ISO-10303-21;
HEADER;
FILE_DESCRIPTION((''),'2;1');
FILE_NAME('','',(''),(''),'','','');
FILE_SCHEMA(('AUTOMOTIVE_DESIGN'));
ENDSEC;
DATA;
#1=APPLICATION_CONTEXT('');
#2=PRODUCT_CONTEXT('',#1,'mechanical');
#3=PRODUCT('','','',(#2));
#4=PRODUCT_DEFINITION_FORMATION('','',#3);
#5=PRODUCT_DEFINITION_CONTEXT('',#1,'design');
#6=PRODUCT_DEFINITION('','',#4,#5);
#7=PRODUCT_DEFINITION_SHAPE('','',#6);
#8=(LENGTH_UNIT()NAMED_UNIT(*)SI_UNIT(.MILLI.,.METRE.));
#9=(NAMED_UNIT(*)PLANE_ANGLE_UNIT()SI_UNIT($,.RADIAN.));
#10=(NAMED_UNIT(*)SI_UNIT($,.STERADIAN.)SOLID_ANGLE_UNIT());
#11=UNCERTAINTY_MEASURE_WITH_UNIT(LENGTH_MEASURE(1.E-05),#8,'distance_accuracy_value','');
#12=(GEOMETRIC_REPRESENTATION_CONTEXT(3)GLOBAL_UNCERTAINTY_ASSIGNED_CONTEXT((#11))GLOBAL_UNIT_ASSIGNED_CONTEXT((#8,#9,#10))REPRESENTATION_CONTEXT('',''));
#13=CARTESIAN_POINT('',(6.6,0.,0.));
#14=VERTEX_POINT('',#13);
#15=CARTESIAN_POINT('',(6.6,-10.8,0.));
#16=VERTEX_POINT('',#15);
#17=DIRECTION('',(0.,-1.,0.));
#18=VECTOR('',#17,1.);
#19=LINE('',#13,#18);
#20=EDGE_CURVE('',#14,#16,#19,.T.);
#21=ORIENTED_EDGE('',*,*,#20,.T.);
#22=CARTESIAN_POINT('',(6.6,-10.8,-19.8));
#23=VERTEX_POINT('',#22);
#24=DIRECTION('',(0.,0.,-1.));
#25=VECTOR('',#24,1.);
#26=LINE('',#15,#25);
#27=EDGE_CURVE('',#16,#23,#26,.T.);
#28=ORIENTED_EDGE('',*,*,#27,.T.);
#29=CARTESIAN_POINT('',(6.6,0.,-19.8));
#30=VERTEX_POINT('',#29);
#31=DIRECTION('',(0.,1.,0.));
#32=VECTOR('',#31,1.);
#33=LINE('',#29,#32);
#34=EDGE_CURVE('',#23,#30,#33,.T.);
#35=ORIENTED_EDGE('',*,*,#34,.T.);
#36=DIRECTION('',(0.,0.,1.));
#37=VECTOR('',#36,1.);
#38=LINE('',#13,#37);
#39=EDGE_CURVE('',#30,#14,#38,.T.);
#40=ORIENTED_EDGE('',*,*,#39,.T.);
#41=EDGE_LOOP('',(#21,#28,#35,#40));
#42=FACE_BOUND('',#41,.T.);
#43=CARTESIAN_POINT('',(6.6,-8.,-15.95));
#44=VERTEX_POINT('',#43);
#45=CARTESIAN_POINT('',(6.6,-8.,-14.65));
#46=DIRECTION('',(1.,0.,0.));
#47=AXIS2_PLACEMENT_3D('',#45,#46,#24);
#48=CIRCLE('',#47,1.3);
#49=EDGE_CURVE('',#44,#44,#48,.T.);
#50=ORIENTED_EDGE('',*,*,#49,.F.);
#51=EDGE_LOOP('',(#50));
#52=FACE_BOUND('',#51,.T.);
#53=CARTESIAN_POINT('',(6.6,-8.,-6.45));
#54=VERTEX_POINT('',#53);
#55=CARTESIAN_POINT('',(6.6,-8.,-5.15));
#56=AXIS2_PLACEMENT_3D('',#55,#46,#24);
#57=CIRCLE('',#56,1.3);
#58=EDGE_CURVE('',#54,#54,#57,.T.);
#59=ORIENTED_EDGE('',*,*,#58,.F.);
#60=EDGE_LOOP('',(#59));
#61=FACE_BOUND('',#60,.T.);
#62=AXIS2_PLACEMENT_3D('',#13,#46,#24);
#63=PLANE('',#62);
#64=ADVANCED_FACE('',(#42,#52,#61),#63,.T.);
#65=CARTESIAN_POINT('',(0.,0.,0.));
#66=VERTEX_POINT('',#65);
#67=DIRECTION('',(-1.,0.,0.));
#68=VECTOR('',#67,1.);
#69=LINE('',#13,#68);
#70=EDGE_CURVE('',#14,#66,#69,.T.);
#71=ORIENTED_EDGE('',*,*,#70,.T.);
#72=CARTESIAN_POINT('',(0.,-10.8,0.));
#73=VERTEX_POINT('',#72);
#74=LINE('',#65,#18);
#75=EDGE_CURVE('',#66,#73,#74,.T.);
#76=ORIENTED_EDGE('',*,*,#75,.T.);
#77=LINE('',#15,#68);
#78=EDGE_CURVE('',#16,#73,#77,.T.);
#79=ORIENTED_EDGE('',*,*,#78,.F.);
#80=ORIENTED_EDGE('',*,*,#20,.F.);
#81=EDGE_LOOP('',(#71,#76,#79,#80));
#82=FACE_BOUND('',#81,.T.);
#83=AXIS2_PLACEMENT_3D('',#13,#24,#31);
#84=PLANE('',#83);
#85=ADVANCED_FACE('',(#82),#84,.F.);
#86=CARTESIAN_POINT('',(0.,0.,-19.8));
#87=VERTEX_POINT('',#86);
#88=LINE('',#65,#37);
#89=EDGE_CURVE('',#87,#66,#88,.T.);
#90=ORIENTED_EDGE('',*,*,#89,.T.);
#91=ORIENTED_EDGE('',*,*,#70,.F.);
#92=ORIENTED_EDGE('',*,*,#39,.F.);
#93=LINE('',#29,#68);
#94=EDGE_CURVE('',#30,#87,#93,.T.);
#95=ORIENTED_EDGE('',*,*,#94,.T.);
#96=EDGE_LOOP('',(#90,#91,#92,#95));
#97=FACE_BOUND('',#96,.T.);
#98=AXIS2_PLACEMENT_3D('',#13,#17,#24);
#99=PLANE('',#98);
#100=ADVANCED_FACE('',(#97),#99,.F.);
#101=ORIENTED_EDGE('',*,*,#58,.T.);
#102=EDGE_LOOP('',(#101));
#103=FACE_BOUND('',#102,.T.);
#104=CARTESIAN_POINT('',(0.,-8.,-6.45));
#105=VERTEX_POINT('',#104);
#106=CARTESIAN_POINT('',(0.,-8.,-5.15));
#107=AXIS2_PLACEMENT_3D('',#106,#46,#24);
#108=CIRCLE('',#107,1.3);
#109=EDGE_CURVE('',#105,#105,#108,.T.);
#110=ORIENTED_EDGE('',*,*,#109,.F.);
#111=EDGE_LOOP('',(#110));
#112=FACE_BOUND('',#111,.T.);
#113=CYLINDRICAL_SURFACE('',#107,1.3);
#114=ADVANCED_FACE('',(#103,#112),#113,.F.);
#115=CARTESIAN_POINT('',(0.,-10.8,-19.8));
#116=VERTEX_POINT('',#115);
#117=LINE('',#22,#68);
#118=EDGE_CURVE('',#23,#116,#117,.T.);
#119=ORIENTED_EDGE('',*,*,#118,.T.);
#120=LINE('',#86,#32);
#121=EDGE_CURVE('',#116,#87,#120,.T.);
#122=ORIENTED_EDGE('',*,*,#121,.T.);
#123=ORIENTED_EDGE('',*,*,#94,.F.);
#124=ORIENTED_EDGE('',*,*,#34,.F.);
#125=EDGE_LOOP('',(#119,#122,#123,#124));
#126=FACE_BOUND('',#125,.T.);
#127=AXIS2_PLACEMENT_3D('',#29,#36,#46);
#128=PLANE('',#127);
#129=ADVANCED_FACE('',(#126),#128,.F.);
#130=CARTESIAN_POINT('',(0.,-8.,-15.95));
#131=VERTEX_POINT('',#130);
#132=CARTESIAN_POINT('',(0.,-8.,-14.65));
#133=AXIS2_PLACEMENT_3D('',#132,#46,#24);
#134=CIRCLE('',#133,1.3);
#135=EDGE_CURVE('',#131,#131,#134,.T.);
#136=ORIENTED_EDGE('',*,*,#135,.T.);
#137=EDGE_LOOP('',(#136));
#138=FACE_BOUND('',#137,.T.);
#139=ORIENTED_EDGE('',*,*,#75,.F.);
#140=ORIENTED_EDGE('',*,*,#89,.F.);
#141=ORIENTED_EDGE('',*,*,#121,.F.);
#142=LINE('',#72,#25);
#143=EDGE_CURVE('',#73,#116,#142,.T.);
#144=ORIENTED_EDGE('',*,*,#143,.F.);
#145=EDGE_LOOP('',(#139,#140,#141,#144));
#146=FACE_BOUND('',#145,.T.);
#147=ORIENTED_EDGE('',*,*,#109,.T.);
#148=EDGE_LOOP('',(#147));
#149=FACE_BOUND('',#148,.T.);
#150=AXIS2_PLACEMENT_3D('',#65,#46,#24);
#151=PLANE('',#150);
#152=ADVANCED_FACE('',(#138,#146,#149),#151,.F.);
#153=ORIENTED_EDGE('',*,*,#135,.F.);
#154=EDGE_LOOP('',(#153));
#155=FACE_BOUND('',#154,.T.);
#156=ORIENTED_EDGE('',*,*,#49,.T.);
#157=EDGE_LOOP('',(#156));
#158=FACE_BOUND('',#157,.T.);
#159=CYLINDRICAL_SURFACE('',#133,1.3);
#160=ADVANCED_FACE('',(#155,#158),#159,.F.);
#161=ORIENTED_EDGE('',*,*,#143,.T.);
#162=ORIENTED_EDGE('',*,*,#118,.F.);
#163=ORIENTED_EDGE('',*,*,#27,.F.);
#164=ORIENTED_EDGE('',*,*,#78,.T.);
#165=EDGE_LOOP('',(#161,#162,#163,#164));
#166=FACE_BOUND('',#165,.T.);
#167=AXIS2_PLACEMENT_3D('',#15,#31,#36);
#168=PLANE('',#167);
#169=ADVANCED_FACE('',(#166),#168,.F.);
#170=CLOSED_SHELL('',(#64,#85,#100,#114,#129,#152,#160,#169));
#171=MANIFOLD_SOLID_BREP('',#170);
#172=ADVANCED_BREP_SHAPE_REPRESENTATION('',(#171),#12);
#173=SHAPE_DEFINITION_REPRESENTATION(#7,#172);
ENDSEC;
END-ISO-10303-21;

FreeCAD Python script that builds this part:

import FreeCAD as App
import Part
import Sketcher

V = App.Vector
Q = App.Units.Quantity


def add_polygon(sketch, points):
    """Adds a closed chain of lines whose ends are joined by coincident constraints."""
    first, n = sketch.GeometryCount, len(points)
    for a, b in zip(points, points[1:] + points[:1]):
        sketch.addGeometry(Part.LineSegment(App.Vector(*a, 0), App.Vector(*b, 0)), False)
    for i in range(n):
        sketch.addConstraint(Sketcher.Constraint("Coincident", first + i, 2, first + (i + 1) % n, 1))

doc = App.newDocument("Part")
body = doc.addObject("PartDesign::Body", "Body")

sketch1 = body.newObject("Sketcher::SketchObject", "Sketch")
sketch1.AttachmentSupport = (doc.getObject("YZ_Plane"), [""])
sketch1.MapMode = "FlatFace"
add_polygon(sketch1, [(0, 0), (-11, 0), (-11, -20), (0, -20)])
sketch1.addConstraint([
    Sketcher.Constraint("Horizontal", 0),
    Sketcher.Constraint("Vertical", 1),
    Sketcher.Constraint("Horizontal", 2),
    Sketcher.Constraint("Vertical", 3),
    Sketcher.Constraint("Coincident", 3, 2, -1, 1),
    Sketcher.Constraint("DistanceX", 0, 2, 0, 1, Q("10.8 mm")),
    Sketcher.Constraint("DistanceY", 1, 2, 1, 1, Q("19.8 mm")),
])
pad1 = body.newObject("PartDesign::Pad", "Pad")
pad1.Profile = sketch1
pad1.Length = 6.6

sketch2 = body.newObject("Sketcher::SketchObject", "Sketch001")
sketch2.AttachmentSupport = (doc.getObject("YZ_Plane"), [""])
sketch2.MapMode = "FlatFace"
sketch2.AttachmentOffset = App.Placement(V(0, 0, 6.6), App.Rotation())
sketch2.addGeometry([
    Part.Circle(V(-8, -5.2, 0), V(0, 0, 1), 1.3),
    Part.Circle(V(-8, -14.7, 0), V(0, 0, 1), 1.3),
], False)
sketch2.addConstraint([
    Sketcher.Constraint("Equal", 0, 1),
    Sketcher.Constraint("Vertical", 0, 3, 1, 3),
    Sketcher.Constraint("Diameter", 0, Q("2.6 mm")),
    Sketcher.Constraint("DistanceX", 0, 3, -1, 1, Q("8 mm")),
    Sketcher.Constraint("DistanceY", 1, 3, 0, 3, Q("9.5 mm")),
    Sketcher.Constraint("DistanceY", 0, 3, -1, 1, Q("5.15 mm")),
])
pocket1 = body.newObject("PartDesign::Pocket", "Pocket")
pocket1.Profile = sketch2
pocket1.Length = 6.6

doc.recompute()
